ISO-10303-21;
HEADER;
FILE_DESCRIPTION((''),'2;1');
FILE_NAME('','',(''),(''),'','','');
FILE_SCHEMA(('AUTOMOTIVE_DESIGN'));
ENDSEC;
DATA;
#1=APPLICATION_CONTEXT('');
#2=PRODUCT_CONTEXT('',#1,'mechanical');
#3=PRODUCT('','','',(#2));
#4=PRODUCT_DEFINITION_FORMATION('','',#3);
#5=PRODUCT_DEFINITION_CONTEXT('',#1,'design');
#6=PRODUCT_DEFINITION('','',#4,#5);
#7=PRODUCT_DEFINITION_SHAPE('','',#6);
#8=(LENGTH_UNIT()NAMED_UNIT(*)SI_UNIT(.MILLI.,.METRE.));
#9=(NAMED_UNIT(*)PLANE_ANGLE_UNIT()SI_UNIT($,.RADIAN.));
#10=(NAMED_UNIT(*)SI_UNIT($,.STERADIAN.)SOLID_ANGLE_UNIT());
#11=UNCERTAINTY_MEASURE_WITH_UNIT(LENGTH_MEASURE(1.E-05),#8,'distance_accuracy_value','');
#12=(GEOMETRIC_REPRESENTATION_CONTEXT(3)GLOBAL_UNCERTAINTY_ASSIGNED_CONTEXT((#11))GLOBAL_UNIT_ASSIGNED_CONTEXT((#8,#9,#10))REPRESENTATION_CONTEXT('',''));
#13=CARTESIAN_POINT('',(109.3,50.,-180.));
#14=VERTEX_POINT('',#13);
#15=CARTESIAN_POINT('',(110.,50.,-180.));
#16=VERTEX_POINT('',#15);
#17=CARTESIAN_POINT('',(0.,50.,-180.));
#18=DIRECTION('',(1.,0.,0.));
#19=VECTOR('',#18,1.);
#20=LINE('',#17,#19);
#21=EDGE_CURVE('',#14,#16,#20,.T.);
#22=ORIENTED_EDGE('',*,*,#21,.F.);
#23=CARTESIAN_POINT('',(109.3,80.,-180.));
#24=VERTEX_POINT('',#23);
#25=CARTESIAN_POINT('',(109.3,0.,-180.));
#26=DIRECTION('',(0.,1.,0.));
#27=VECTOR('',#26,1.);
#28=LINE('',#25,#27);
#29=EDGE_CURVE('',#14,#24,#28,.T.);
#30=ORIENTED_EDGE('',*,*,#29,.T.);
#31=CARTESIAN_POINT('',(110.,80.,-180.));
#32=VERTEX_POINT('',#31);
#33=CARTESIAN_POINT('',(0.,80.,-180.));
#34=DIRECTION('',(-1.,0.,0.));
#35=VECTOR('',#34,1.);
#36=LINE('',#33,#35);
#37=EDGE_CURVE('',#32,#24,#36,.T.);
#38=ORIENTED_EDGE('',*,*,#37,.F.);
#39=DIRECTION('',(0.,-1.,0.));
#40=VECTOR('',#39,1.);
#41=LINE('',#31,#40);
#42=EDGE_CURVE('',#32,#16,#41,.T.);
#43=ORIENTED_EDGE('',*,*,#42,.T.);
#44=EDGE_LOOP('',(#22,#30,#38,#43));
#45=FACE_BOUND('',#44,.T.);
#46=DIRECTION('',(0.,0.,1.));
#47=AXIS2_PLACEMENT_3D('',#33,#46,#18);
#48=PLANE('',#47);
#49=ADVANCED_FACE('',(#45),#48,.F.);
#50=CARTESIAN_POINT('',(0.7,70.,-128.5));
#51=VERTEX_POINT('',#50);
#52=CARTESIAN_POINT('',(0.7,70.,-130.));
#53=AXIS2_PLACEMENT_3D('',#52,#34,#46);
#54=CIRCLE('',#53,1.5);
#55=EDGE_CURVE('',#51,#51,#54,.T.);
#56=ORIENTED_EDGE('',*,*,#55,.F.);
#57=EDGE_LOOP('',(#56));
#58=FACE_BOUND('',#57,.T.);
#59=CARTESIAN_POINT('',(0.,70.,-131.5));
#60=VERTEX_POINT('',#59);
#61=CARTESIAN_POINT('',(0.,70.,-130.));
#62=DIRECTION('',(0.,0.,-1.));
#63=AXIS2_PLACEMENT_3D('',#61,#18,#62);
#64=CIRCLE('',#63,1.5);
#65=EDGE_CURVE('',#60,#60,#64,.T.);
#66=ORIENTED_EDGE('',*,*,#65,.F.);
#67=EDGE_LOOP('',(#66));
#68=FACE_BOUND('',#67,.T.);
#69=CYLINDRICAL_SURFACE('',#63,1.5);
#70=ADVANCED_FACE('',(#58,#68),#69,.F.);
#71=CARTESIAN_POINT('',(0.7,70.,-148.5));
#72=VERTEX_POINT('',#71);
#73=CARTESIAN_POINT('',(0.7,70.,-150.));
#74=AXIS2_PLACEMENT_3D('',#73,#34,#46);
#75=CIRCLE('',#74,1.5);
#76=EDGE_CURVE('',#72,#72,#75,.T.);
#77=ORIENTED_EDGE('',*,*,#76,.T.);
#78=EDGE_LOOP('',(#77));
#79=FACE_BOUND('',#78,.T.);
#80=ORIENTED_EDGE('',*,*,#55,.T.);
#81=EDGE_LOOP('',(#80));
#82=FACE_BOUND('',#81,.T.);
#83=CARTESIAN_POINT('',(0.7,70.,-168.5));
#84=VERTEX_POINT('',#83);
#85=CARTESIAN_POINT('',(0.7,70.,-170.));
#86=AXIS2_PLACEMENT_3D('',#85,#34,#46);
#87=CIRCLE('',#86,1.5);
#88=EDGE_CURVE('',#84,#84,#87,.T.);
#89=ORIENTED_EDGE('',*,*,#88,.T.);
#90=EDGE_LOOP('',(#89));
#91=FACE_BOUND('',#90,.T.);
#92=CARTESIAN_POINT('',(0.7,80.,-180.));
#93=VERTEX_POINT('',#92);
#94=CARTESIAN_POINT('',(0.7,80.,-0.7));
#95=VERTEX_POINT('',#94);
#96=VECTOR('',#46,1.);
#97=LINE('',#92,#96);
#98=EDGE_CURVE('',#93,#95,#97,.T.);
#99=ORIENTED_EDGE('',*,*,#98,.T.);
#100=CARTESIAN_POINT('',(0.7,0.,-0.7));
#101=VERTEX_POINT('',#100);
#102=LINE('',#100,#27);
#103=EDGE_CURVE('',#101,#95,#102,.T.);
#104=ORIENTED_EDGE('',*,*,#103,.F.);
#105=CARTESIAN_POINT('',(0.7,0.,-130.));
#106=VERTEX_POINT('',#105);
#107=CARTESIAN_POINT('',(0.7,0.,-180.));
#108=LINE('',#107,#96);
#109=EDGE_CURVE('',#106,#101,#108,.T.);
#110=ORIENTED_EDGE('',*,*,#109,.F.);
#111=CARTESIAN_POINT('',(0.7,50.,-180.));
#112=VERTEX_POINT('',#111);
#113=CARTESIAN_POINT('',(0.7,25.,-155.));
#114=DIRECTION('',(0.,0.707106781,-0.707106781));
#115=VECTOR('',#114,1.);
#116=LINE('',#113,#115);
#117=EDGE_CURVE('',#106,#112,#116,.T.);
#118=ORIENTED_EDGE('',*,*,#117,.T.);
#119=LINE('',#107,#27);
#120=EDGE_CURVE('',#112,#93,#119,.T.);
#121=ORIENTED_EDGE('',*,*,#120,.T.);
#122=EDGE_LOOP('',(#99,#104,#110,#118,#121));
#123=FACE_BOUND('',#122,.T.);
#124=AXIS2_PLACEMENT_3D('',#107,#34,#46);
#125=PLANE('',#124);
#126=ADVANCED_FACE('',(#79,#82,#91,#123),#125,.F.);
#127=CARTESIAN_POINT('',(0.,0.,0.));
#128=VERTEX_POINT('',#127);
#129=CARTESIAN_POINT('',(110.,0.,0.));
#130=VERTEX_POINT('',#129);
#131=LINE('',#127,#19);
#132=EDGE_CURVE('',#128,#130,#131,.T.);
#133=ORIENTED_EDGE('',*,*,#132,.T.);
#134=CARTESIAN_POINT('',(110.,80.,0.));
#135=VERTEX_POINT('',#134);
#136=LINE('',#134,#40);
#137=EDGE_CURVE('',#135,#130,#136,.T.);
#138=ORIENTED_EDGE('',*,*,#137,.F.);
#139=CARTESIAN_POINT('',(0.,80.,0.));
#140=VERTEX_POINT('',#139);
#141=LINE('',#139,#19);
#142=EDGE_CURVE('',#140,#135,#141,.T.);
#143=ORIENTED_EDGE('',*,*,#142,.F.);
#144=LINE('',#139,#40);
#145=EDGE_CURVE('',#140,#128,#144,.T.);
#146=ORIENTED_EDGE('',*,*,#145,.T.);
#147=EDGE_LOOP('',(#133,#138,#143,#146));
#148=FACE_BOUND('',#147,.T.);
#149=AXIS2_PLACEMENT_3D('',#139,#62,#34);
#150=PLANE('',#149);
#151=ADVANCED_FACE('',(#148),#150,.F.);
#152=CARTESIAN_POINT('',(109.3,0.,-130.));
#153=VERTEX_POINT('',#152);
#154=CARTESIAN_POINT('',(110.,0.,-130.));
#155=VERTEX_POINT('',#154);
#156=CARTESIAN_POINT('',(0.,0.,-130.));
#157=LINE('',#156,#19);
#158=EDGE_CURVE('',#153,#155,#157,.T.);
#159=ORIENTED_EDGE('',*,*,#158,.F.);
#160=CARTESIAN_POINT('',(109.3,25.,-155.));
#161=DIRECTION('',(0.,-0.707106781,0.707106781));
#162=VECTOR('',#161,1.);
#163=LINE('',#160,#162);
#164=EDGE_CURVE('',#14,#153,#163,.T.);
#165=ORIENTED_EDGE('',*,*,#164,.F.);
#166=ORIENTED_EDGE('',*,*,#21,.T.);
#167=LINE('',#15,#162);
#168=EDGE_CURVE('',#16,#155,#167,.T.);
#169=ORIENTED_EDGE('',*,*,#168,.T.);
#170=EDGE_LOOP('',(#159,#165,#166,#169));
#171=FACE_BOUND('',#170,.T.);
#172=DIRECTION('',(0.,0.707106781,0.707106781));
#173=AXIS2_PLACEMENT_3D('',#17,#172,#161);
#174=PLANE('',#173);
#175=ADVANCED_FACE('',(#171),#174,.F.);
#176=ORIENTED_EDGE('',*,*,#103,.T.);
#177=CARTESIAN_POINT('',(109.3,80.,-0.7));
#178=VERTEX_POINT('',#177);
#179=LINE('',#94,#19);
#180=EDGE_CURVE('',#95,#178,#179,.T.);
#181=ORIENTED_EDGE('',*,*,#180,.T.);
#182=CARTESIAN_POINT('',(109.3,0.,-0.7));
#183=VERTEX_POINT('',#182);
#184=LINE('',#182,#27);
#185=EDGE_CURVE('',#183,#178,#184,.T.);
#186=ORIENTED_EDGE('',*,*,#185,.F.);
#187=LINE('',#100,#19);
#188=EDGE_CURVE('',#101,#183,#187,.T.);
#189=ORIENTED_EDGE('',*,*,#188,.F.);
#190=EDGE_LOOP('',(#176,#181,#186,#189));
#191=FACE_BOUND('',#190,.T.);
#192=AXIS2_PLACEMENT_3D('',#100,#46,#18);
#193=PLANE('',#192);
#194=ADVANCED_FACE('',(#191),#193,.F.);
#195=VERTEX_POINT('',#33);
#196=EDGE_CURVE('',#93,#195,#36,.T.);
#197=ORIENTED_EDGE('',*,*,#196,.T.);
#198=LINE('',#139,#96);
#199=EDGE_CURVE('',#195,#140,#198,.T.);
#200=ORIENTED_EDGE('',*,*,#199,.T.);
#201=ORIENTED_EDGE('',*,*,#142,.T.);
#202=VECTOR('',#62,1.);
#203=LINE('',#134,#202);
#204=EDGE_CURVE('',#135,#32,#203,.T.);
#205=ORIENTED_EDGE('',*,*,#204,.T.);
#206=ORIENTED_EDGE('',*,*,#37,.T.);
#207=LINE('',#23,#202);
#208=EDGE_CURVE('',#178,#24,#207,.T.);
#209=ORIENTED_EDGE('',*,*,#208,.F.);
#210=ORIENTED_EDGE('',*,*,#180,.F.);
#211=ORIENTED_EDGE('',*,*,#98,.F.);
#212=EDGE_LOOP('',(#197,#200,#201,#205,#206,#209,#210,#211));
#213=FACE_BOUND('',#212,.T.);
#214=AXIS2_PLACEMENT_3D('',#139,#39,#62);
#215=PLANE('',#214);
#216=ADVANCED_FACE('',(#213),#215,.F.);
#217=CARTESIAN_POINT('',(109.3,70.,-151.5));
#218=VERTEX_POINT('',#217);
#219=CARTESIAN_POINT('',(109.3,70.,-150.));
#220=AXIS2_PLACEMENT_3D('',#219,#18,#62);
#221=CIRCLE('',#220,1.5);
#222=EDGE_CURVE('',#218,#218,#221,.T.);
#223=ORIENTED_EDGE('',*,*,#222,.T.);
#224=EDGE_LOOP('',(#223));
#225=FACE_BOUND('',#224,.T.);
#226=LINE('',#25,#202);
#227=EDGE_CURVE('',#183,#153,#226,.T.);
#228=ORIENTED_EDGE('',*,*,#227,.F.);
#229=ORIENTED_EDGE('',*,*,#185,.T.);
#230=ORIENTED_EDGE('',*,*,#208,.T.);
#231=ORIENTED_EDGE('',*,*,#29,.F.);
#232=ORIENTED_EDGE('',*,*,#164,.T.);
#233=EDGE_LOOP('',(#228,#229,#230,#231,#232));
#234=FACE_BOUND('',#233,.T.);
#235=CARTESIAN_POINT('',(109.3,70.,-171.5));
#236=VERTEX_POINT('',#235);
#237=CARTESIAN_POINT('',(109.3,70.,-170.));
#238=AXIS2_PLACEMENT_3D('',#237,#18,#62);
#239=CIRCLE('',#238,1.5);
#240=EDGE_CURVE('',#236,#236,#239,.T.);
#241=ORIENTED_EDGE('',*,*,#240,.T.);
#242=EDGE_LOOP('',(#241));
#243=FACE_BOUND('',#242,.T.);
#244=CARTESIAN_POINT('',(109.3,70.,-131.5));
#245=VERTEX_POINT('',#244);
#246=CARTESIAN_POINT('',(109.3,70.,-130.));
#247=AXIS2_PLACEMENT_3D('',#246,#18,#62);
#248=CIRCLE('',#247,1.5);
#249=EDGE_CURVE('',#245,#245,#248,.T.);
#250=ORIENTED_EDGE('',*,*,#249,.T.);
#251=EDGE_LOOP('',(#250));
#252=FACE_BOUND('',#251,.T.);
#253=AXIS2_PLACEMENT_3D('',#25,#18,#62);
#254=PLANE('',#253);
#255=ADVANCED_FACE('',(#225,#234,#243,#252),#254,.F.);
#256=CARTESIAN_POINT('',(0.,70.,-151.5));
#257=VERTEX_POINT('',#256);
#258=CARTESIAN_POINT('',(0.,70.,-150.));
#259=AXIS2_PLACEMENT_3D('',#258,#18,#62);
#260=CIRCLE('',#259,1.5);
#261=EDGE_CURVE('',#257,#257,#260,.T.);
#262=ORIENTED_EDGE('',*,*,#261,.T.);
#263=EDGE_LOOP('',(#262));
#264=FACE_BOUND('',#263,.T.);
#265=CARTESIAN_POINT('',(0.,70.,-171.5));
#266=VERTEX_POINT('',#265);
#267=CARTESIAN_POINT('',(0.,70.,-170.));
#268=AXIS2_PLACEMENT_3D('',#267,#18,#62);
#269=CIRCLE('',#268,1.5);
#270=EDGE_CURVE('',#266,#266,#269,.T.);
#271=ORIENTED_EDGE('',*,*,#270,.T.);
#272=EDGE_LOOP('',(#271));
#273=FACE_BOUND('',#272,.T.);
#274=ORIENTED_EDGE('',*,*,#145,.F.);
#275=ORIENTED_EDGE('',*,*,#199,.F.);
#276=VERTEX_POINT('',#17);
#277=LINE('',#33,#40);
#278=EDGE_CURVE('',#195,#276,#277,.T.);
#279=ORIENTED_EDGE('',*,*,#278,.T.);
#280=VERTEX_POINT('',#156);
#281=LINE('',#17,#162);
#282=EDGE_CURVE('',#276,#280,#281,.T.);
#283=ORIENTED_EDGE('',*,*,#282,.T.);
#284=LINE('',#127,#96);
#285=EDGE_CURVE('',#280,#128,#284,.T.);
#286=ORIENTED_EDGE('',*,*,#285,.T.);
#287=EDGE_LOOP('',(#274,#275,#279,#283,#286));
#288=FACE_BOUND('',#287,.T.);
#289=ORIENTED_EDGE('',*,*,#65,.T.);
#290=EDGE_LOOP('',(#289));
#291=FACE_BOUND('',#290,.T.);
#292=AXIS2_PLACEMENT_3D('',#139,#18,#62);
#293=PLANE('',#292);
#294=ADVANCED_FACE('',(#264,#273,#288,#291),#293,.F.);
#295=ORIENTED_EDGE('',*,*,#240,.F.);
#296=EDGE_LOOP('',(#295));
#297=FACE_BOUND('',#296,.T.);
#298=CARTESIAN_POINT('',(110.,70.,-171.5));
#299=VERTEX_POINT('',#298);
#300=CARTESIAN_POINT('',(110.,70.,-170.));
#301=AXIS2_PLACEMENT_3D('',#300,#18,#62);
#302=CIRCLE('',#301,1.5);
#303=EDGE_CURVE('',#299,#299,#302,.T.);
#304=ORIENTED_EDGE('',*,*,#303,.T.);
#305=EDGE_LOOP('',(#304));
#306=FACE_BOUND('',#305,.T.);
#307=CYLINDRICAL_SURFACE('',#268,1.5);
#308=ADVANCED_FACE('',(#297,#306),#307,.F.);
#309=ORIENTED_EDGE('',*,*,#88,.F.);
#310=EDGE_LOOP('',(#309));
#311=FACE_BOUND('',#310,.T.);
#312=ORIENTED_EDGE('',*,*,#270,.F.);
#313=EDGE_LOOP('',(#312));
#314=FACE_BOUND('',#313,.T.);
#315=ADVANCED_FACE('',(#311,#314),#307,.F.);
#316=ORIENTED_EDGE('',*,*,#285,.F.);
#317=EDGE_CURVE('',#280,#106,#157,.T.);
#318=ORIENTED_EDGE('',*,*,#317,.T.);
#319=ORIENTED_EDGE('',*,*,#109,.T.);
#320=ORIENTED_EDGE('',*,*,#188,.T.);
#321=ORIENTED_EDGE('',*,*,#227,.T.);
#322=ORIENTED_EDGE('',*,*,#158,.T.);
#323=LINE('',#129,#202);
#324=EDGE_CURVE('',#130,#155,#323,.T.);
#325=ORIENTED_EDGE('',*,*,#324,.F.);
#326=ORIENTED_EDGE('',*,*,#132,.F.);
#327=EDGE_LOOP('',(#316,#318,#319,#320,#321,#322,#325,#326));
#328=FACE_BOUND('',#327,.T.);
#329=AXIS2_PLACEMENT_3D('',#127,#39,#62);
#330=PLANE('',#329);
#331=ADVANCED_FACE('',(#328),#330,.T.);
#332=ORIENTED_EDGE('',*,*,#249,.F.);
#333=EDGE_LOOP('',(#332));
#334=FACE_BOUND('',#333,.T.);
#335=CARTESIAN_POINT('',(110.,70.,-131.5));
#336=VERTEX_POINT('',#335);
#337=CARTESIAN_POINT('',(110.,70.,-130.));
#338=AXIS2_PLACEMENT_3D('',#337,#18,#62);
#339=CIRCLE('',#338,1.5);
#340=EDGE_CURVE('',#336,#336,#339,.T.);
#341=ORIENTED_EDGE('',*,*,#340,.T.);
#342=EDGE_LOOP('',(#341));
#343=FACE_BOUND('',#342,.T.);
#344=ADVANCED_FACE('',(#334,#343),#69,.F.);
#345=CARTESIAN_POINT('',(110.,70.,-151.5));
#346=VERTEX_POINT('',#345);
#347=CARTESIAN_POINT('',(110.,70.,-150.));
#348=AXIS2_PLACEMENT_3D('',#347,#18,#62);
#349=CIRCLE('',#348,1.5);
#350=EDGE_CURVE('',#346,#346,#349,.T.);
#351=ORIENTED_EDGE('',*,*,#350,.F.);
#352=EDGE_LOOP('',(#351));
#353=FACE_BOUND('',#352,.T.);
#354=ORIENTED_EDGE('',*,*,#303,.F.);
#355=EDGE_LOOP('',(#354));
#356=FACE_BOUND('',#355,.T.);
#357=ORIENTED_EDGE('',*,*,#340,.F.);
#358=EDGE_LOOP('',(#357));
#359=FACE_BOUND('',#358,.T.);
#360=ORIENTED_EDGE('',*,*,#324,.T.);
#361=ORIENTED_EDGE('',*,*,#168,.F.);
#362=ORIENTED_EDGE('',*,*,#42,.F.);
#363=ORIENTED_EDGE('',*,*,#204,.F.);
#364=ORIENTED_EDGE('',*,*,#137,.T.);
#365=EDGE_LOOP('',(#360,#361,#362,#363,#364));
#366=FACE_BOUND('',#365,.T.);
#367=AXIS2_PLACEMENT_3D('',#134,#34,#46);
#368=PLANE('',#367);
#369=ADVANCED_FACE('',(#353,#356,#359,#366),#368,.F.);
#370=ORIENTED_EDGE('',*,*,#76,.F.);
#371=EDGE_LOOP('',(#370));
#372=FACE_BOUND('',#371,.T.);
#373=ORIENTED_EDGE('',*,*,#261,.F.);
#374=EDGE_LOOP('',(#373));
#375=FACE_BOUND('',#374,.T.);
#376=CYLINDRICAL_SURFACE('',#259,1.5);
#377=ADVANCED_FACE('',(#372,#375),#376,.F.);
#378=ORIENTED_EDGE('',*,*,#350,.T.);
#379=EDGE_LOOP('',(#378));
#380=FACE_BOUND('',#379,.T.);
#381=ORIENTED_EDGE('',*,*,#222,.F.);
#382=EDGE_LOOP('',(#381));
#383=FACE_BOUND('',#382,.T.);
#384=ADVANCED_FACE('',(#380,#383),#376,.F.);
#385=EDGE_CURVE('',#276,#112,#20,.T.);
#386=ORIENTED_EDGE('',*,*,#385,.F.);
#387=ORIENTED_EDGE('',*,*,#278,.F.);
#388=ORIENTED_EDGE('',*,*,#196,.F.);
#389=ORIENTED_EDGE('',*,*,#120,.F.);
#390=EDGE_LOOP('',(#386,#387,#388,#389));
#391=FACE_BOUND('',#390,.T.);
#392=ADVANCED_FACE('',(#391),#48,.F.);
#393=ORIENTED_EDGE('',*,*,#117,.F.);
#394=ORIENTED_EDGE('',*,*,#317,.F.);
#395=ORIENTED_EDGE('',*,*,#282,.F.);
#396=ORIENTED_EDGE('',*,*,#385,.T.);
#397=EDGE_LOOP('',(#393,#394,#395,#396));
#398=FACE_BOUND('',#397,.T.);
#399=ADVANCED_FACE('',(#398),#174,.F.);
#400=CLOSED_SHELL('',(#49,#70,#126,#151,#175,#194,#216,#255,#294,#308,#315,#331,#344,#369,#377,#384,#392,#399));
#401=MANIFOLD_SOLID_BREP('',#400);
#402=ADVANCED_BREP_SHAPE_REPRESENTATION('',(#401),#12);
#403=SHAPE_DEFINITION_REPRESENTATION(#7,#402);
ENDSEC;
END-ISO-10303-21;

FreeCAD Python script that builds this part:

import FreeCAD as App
import Part
import Sketcher


def add_polygon(sketch, points):
    """Adds a closed chain of lines whose ends are joined by coincident constraints."""
    first, n = sketch.GeometryCount, len(points)
    for a, b in zip(points, points[1:] + points[:1]):
        sketch.addGeometry(Part.LineSegment(App.Vector(*a, 0), App.Vector(*b, 0)), False)
    for i in range(n):
        sketch.addConstraint(Sketcher.Constraint("Coincident", first + i, 2, first + (i + 1) % n, 1))

doc = App.newDocument("Part")
body = doc.addObject("PartDesign::Body", "Body")

# Sketch on XZ plane
sketch1 = doc.addObject("Sketcher::SketchObject", "Sketch")
body.addObject(sketch1)
sketch1.AttachmentSupport = (doc.XZ_Plane, [""])
sketch1.MapMode = "FlatFace"
add_polygon(sketch1, [(0, -180), (0, 0), (110, 0), (110, -180)])  # lines 0-3
sketch1.addConstraint([
    Sketcher.Constraint("Vertical", 0),
    Sketcher.Constraint("Horizontal", 1),
    Sketcher.Constraint("Vertical", 2),
    Sketcher.Constraint("Horizontal", 3),
    Sketcher.Constraint("Coincident", 0, 2, -1, 1),
    Sketcher.Constraint("DistanceX", 1, 1, 1, 2, 110.0),
    Sketcher.Constraint("DistanceY", 0, 1, 0, 2, 180.0),
])
pad1 = doc.addObject("PartDesign::Pad", "Pad")
body.addObject(pad1)
pad1.Profile = sketch1
pad1.Length = 80
pad1.Reversed = True

# Sketch on XZ plane
sketch2 = doc.addObject("Sketcher::SketchObject", "Sketch001")
body.addObject(sketch2)
sketch2.AttachmentSupport = (doc.XZ_Plane, [""])
sketch2.MapMode = "FlatFace"
sketch2.AttachmentOffset = App.Placement(App.Vector(0, 0, -80), App.Rotation())
add_polygon(sketch2, [(1, -180), (1, -1), (109, -1), (109, -180)])  # lines 0-3
sketch2.addConstraint([
    Sketcher.Constraint("Vertical", 0),
    Sketcher.Constraint("Horizontal", 1),
    Sketcher.Constraint("Vertical", 2),
    Sketcher.Constraint("Horizontal", 3),
    Sketcher.Constraint("DistanceX", 1, 1, 1, 2, 108.6),
    Sketcher.Constraint("DistanceY", 0, 1, 0, 2, 179.3),
    Sketcher.Constraint("DistanceY", 2, 2, -1, 1, 180.0),
    Sketcher.Constraint("DistanceX", -1, 1, 0, 2, 0.7),
])
pocket1 = doc.addObject("PartDesign::Pocket", "Pocket")
body.addObject(pocket1)
pocket1.Profile = sketch2
pocket1.Type = "ThroughAll"
pocket1.Reversed = True

# Sketch on YZ plane
sketch3 = doc.addObject("Sketcher::SketchObject", "Sketch002")
body.addObject(sketch3)
sketch3.AttachmentSupport = (doc.YZ_Plane, [""])
sketch3.MapMode = "FlatFace"
sketch3.AttachmentOffset = App.Placement(App.Vector(0, 0, 110), App.Rotation())
sketch3.addGeometry([
    Part.Circle(App.Vector(70, -170, 0), App.Vector(0, 0, 1), 1.5),
    Part.Circle(App.Vector(70, -130, 0), App.Vector(0, 0, 1), 1.5),
    Part.Circle(App.Vector(70, -150, 0), App.Vector(0, 0, 1), 1.5),
], False)
sketch3.addConstraint([
    Sketcher.Constraint("Equal", 0, 1),
    Sketcher.Constraint("Equal", 1, 2),
    Sketcher.Constraint("Vertical", 0, 3, 1, 3),
    Sketcher.Constraint("Vertical", 1, 3, 2, 3),
    Sketcher.Constraint("Diameter", 0, 3.0),
    Sketcher.Constraint("DistanceX", -1, 1, 0, 3, 70.0),
    Sketcher.Constraint("DistanceY", 0, 3, -1, 1, 170.0),
    Sketcher.Constraint("DistanceY", 1, 3, -1, 1, 130.0),
    Sketcher.Constraint("DistanceY", 2, 3, -1, 1, 150.0),
])
pocket2 = doc.addObject("PartDesign::Pocket", "Pocket001")
body.addObject(pocket2)
pocket2.Profile = sketch3
pocket2.Type = "ThroughAll"

# Sketch on YZ plane
sketch4 = doc.addObject("Sketcher::SketchObject", "Sketch003")
body.addObject(sketch4)
sketch4.AttachmentSupport = (doc.YZ_Plane, [""])
sketch4.MapMode = "FlatFace"
sketch4.AttachmentOffset = App.Placement(App.Vector(0, 0, 110), App.Rotation())
add_polygon(sketch4, [(50, -180), (0, -130), (0, -180)])  # lines 0-2
sketch4.addConstraint([
    Sketcher.Constraint("Vertical", 1),
    Sketcher.Constraint("Horizontal", 2),
    Sketcher.Constraint("PointOnObject", 0, 2, -2),
    Sketcher.Constraint("Equal", 2, 1),
    Sketcher.Constraint("DistanceX", 2, 1, 2, 2, 50.0),
    Sketcher.Constraint("DistanceY", 0, 2, -1, 1, 130.0),
])
pocket3 = doc.addObject("PartDesign::Pocket", "Pocket002")
body.addObject(pocket3)
pocket3.Profile = sketch4
pocket3.Type = "ThroughAll"

doc.recompute()
